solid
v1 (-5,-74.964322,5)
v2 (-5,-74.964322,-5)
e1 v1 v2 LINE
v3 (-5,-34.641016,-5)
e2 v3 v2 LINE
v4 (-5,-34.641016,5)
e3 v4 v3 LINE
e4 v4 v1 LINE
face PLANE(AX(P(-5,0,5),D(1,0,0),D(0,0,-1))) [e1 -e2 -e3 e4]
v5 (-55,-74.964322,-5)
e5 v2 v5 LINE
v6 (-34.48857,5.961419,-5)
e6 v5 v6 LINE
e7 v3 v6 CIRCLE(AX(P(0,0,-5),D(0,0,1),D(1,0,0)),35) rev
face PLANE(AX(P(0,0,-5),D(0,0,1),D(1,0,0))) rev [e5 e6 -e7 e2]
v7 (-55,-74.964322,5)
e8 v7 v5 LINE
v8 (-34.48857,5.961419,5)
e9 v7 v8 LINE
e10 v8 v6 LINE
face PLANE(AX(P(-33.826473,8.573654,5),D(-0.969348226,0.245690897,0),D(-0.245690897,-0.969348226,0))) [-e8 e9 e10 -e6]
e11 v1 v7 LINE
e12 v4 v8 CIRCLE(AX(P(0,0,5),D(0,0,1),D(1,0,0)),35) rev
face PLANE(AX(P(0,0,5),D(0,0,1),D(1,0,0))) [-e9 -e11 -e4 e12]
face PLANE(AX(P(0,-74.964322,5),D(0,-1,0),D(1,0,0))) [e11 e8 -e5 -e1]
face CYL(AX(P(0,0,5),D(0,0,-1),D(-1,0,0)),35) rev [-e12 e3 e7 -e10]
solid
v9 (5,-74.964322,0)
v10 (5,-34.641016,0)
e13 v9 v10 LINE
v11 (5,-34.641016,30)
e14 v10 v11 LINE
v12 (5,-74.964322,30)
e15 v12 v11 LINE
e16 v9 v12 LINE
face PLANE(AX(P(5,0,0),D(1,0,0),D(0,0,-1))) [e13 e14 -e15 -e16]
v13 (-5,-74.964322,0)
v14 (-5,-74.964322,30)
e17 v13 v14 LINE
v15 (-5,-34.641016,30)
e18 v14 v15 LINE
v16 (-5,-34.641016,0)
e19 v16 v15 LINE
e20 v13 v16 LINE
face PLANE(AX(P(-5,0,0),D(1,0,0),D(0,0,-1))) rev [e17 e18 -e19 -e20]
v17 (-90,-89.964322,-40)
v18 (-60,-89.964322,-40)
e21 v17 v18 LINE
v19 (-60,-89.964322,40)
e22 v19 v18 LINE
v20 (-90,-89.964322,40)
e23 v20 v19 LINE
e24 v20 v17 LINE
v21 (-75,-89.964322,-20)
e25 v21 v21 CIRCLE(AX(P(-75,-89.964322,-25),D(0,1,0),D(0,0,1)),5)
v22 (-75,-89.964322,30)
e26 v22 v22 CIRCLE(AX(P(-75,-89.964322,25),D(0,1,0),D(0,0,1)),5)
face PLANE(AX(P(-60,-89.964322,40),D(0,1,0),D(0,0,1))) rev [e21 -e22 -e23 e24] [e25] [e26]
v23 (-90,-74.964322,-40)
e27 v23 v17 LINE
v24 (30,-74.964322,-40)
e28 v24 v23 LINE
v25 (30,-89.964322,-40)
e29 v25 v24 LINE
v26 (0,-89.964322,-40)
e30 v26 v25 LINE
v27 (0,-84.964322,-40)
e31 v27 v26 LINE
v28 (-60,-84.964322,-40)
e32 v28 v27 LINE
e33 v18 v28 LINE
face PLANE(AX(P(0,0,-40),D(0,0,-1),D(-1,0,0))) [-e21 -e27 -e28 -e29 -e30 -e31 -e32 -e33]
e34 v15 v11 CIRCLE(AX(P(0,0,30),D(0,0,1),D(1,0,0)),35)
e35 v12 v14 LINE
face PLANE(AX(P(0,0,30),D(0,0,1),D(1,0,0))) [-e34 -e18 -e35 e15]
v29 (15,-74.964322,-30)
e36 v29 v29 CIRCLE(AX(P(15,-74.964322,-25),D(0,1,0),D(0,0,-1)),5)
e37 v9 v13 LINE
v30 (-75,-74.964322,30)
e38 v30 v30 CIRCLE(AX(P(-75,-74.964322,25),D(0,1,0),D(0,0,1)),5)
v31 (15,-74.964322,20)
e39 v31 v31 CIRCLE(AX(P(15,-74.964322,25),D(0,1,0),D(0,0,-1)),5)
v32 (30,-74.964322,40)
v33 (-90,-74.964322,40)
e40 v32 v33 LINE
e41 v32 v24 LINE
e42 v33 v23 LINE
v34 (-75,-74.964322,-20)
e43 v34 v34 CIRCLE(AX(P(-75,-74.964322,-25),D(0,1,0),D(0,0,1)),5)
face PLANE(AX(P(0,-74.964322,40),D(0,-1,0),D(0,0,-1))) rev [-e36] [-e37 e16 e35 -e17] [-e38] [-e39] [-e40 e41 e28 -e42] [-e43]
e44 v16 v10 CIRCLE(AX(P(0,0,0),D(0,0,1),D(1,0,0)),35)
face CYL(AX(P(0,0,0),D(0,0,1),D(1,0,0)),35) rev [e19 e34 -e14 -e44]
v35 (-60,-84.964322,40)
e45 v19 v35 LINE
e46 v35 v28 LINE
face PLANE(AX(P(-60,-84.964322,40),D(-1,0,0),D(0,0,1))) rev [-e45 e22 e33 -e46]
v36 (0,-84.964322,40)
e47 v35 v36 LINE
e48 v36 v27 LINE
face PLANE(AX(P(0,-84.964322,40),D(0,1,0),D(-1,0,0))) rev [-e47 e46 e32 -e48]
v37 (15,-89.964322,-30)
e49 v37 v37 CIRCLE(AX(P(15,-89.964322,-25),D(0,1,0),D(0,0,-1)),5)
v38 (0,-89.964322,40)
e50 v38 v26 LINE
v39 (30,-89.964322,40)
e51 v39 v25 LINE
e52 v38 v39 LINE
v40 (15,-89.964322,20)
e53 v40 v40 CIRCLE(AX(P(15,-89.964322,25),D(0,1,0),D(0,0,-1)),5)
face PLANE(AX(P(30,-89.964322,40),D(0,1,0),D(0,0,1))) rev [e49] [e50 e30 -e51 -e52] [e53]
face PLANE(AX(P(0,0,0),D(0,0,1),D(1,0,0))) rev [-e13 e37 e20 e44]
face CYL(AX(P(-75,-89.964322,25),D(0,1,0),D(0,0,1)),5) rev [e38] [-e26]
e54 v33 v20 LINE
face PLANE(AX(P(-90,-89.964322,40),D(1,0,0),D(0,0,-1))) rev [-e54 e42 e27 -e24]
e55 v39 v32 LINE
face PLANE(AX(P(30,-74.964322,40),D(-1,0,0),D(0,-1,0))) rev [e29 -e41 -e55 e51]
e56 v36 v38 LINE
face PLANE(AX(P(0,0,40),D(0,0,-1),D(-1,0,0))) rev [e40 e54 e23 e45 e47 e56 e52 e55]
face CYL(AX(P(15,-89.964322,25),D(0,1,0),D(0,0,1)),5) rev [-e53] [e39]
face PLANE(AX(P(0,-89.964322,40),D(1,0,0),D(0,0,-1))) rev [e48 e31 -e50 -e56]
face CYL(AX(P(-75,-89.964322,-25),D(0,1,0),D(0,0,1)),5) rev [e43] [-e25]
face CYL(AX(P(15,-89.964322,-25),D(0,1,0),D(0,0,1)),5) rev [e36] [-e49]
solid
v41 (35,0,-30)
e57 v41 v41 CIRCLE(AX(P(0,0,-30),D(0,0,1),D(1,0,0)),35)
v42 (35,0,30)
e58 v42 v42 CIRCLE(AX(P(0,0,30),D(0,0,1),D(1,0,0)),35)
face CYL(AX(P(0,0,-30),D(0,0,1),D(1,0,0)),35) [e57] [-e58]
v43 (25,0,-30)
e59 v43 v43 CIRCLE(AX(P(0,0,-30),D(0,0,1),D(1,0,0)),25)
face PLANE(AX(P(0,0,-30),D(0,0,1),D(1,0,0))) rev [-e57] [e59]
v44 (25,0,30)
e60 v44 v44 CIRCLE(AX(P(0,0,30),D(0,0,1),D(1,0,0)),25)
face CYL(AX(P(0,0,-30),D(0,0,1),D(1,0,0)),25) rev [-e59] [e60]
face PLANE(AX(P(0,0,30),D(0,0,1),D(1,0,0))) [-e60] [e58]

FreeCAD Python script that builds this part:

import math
import FreeCAD as App
import Part
import Sketcher


def add_polygon(sketch, points):
    """Adds a closed chain of lines whose ends are joined by coincident constraints."""
    first, n = sketch.GeometryCount, len(points)
    for a, b in zip(points, points[1:] + points[:1]):
        sketch.addGeometry(Part.LineSegment(App.Vector(*a, 0), App.Vector(*b, 0)), False)
    for i in range(n):
        sketch.addConstraint(Sketcher.Constraint("Coincident", first + i, 2, first + (i + 1) % n, 1))

doc = App.newDocument("Part")
body = doc.addObject("PartDesign::Body", "Body")

# Sketch on XY plane
sketch1 = body.newObject("Sketcher::SketchObject", "Sketch")
sketch1.AttachmentSupport = (doc.getObject("XY_Plane"), [""])
sketch1.MapMode = "FlatFace"
sketch1.addGeometry(Part.Circle(App.Vector(0, 0, 0), App.Vector(0, 0, 1), 35), False)
sketch1.addGeometry(Part.Circle(App.Vector(0, 0, 0), App.Vector(0, 0, 1), 25), False)
sketch1.addConstraint(Sketcher.Constraint("Coincident", 0, 3, -1, 1))
sketch1.addConstraint(Sketcher.Constraint("Coincident", 1, 3, -1, 1))
sketch1.addConstraint(Sketcher.Constraint("Diameter", 0, 70.0))
sketch1.addConstraint(Sketcher.Constraint("Diameter", 1, 50.0))
pad1 = body.newObject("PartDesign::Pad", "Pad")
pad1.Profile = sketch1
pad1.Length = 60
pad1.Midplane = True
body2 = doc.addObject("PartDesign::Body", "Body001")

# Sketch on XY plane
sketch2 = body2.newObject("Sketcher::SketchObject", "Sketch001")
sketch2.AttachmentSupport = (doc.getObject("XY_Plane001"), [""])
sketch2.MapMode = "FlatFace"
sketch2.AttachmentOffset = App.Placement(App.Vector(0, 0, 30), App.Rotation())
sketch2.addGeometry(Part.ArcOfCircle(Part.Circle(App.Vector(0, 0, 0), App.Vector(0, 0, 1), 35), math.radians(-98.21), math.radians(-90)), False)
sketch2.addGeometry(Part.LineSegment(App.Vector(-5, -35, 0), App.Vector(-5, -75, 0)), False)
sketch2.addGeometry(Part.LineSegment(App.Vector(-5, -75, 0), App.Vector(5, -75, 0)), False)
sketch2.addGeometry(Part.LineSegment(App.Vector(5, -75, 0), App.Vector(5, -35, 0)), False)
sketch2.addGeometry(Part.ArcOfCircle(Part.Circle(App.Vector(0, 0, 0), App.Vector(0, 0, 1), 35), math.radians(-90), math.radians(-81.79)), False)
sketch2.addConstraint(Sketcher.Constraint("Coincident", 0, 1, 1, 1))
sketch2.addConstraint(Sketcher.Constraint("Coincident", 1, 2, 2, 1))
sketch2.addConstraint(Sketcher.Constraint("Coincident", 2, 2, 3, 1))
sketch2.addConstraint(Sketcher.Constraint("Coincident", 3, 2, 4, 2))
sketch2.addConstraint(Sketcher.Constraint("Tangent", 4, 1, 0, 2))
sketch2.addConstraint(Sketcher.Constraint("Vertical", 1))
sketch2.addConstraint(Sketcher.Constraint("Horizontal", 2))
sketch2.addConstraint(Sketcher.Constraint("Vertical", 3))
sketch2.addConstraint(Sketcher.Constraint("Coincident", 0, 3, -1, 1))
sketch2.addConstraint(Sketcher.Constraint("Equal", 0, 4))
sketch2.addConstraint(Sketcher.Constraint("PointOnObject", 4, 1, -2))
sketch2.addConstraint(Sketcher.Constraint("Horizontal", 0, 1, 3, 2))
sketch2.addConstraint(Sketcher.Constraint("Radius", 0, 35.0))
sketch2.addConstraint(Sketcher.Constraint("DistanceX", 2, 1, 2, 2, 10.0))
sketch2.addConstraint(Sketcher.Constraint("DistanceY", 1, 2, 1, 1, 40.323306))
pad2 = body2.newObject("PartDesign::Pad", "Pad001")
pad2.Profile = sketch2
pad2.Length = 30
pad2.Reversed = True

# Sketch on XY plane
sketch3 = body2.newObject("Sketcher::SketchObject", "Sketch002")
sketch3.AttachmentSupport = (doc.getObject("XY_Plane001"), [""])
sketch3.MapMode = "FlatFace"
add_polygon(sketch3, [(30, -75), (-90, -75), (-90, -90), (-60, -90), (-60, -85), (0, -85), (0, -90), (30, -90)])  # lines 0-7
sketch3.addConstraint(Sketcher.Constraint("Horizontal", 0))
sketch3.addConstraint(Sketcher.Constraint("Vertical", 1))
sketch3.addConstraint(Sketcher.Constraint("Horizontal", 2))
sketch3.addConstraint(Sketcher.Constraint("Vertical", 3))
sketch3.addConstraint(Sketcher.Constraint("Horizontal", 4))
sketch3.addConstraint(Sketcher.Constraint("Vertical", 5))
sketch3.addConstraint(Sketcher.Constraint("Horizontal", 6))
sketch3.addConstraint(Sketcher.Constraint("Vertical", 7))
sketch3.addConstraint(Sketcher.Constraint("PointOnObject", 4, 2, -2))
sketch3.addConstraint(Sketcher.Constraint("Horizontal", 2, 2, 5, 2))
sketch3.addConstraint(Sketcher.Constraint("Equal", 2, 6))
sketch3.addConstraint(Sketcher.Constraint("DistanceX", 0, 2, 0, 1, 120.0))
sketch3.addConstraint(Sketcher.Constraint("DistanceX", 2, 1, 2, 2, 30.0))
sketch3.addConstraint(Sketcher.Constraint("DistanceY", 1, 2, 1, 1, 15.0))
sketch3.addConstraint(Sketcher.Constraint("DistanceY", 3, 1, 3, 2, 5.0))
sketch3.addConstraint(Sketcher.Constraint("DistanceY", 0, 2, -1, 1, 74.964322))
pad3 = body2.newObject("PartDesign::Pad", "Pad002")
pad3.Profile = sketch3
pad3.Length = 80
pad3.Midplane = True

# Sketch on XZ plane
sketch4 = body2.newObject("Sketcher::SketchObject", "Sketch003")
sketch4.AttachmentSupport = (doc.getObject("XZ_Plane001"), [""])
sketch4.MapMode = "FlatFace"
sketch4.AttachmentOffset = App.Placement(App.Vector(0, 0, 74.964322), App.Rotation())
sketch4.addGeometry(Part.Circle(App.Vector(-75, -25, 0), App.Vector(0, 0, 1), 5), False)
sketch4.addGeometry(Part.Circle(App.Vector(-75, 25, 0), App.Vector(0, 0, 1), 5), False)
sketch4.addGeometry(Part.Circle(App.Vector(15, 25, 0), App.Vector(0, 0, 1), 5), False)
sketch4.addGeometry(Part.Circle(App.Vector(15, -25, 0), App.Vector(0, 0, 1), 5), False)
sketch4.addConstraint(Sketcher.Constraint("Equal", 0, 1))
sketch4.addConstraint(Sketcher.Constraint("Equal", 1, 2))
sketch4.addConstraint(Sketcher.Constraint("Equal", 2, 3))
sketch4.addConstraint(Sketcher.Constraint("Symmetric", 0, 3, 1, 3, -1))
sketch4.addConstraint(Sketcher.Constraint("Symmetric", 2, 3, 3, 3, -1))
sketch4.addConstraint(Sketcher.Constraint("Horizontal", 1, 3, 2, 3))
sketch4.addConstraint(Sketcher.Constraint("Diameter", 0, 10.0))
sketch4.addConstraint(Sketcher.Constraint("DistanceX", 0, 3, -1, 1, 75.0))
sketch4.addConstraint(Sketcher.Constraint("DistanceY", 0, 3, -1, 1, 25.0))
sketch4.addConstraint(Sketcher.Constraint("DistanceX", -1, 1, 2, 3, 15.0))
pocket1 = body2.newObject("PartDesign::Pocket", "Pocket")
pocket1.Profile = sketch4
pocket1.Type = "ThroughAll"
pocket1.Reversed = True
body3 = doc.addObject("PartDesign::Body", "Body002")

# Sketch on XY plane
sketch5 = body3.newObject("Sketcher::SketchObject", "Sketch004")
sketch5.AttachmentSupport = (doc.getObject("XY_Plane002"), [""])
sketch5.MapMode = "FlatFace"
sketch5.addGeometry(Part.LineSegment(App.Vector(-5, -75, 0), App.Vector(-5, -35, 0)), False)
sketch5.addGeometry(Part.ArcOfCircle(Part.Circle(App.Vector(0, 0, 0), App.Vector(0, 0, 1), 35), math.radians(170), math.radians(262)), False)
sketch5.addGeometry(Part.LineSegment(App.Vector(-34, 6, 0), App.Vector(-55, -75, 0)), False)
sketch5.addGeometry(Part.LineSegment(App.Vector(-55, -75, 0), App.Vector(-5, -75, 0)), False)
sketch5.addConstraint(Sketcher.Constraint("Coincident", 0, 2, 1, 2))
sketch5.addConstraint(Sketcher.Constraint("Coincident", 1, 1, 2, 1))
sketch5.addConstraint(Sketcher.Constraint("Coincident", 2, 2, 3, 1))
sketch5.addConstraint(Sketcher.Constraint("Coincident", 3, 2, 0, 1))
sketch5.addConstraint(Sketcher.Constraint("Vertical", 0))
sketch5.addConstraint(Sketcher.Constraint("Horizontal", 3))
sketch5.addConstraint(Sketcher.Constraint("Coincident", 1, 3, -1, 1))
sketch5.addConstraint(Sketcher.Constraint("Radius", 1, 35.0))
sketch5.addConstraint(Sketcher.Constraint("DistanceX", 3, 1, 3, 2, 50.0))
sketch5.addConstraint(Sketcher.Constraint("DistanceX", 0, 2, -1, 1, 5.0))
sketch5.addConstraint(Sketcher.Constraint("DistanceY", 0, 1, 0, 2, 40.323306))
sketch5.addConstraint(Sketcher.Constraint("DistanceX", 1, 1, -1, 1, 34.48857))
pad4 = body3.newObject("PartDesign::Pad", "Pad003")
pad4.Profile = sketch5
pad4.Length = 10
pad4.Midplane = True

doc.recompute()
